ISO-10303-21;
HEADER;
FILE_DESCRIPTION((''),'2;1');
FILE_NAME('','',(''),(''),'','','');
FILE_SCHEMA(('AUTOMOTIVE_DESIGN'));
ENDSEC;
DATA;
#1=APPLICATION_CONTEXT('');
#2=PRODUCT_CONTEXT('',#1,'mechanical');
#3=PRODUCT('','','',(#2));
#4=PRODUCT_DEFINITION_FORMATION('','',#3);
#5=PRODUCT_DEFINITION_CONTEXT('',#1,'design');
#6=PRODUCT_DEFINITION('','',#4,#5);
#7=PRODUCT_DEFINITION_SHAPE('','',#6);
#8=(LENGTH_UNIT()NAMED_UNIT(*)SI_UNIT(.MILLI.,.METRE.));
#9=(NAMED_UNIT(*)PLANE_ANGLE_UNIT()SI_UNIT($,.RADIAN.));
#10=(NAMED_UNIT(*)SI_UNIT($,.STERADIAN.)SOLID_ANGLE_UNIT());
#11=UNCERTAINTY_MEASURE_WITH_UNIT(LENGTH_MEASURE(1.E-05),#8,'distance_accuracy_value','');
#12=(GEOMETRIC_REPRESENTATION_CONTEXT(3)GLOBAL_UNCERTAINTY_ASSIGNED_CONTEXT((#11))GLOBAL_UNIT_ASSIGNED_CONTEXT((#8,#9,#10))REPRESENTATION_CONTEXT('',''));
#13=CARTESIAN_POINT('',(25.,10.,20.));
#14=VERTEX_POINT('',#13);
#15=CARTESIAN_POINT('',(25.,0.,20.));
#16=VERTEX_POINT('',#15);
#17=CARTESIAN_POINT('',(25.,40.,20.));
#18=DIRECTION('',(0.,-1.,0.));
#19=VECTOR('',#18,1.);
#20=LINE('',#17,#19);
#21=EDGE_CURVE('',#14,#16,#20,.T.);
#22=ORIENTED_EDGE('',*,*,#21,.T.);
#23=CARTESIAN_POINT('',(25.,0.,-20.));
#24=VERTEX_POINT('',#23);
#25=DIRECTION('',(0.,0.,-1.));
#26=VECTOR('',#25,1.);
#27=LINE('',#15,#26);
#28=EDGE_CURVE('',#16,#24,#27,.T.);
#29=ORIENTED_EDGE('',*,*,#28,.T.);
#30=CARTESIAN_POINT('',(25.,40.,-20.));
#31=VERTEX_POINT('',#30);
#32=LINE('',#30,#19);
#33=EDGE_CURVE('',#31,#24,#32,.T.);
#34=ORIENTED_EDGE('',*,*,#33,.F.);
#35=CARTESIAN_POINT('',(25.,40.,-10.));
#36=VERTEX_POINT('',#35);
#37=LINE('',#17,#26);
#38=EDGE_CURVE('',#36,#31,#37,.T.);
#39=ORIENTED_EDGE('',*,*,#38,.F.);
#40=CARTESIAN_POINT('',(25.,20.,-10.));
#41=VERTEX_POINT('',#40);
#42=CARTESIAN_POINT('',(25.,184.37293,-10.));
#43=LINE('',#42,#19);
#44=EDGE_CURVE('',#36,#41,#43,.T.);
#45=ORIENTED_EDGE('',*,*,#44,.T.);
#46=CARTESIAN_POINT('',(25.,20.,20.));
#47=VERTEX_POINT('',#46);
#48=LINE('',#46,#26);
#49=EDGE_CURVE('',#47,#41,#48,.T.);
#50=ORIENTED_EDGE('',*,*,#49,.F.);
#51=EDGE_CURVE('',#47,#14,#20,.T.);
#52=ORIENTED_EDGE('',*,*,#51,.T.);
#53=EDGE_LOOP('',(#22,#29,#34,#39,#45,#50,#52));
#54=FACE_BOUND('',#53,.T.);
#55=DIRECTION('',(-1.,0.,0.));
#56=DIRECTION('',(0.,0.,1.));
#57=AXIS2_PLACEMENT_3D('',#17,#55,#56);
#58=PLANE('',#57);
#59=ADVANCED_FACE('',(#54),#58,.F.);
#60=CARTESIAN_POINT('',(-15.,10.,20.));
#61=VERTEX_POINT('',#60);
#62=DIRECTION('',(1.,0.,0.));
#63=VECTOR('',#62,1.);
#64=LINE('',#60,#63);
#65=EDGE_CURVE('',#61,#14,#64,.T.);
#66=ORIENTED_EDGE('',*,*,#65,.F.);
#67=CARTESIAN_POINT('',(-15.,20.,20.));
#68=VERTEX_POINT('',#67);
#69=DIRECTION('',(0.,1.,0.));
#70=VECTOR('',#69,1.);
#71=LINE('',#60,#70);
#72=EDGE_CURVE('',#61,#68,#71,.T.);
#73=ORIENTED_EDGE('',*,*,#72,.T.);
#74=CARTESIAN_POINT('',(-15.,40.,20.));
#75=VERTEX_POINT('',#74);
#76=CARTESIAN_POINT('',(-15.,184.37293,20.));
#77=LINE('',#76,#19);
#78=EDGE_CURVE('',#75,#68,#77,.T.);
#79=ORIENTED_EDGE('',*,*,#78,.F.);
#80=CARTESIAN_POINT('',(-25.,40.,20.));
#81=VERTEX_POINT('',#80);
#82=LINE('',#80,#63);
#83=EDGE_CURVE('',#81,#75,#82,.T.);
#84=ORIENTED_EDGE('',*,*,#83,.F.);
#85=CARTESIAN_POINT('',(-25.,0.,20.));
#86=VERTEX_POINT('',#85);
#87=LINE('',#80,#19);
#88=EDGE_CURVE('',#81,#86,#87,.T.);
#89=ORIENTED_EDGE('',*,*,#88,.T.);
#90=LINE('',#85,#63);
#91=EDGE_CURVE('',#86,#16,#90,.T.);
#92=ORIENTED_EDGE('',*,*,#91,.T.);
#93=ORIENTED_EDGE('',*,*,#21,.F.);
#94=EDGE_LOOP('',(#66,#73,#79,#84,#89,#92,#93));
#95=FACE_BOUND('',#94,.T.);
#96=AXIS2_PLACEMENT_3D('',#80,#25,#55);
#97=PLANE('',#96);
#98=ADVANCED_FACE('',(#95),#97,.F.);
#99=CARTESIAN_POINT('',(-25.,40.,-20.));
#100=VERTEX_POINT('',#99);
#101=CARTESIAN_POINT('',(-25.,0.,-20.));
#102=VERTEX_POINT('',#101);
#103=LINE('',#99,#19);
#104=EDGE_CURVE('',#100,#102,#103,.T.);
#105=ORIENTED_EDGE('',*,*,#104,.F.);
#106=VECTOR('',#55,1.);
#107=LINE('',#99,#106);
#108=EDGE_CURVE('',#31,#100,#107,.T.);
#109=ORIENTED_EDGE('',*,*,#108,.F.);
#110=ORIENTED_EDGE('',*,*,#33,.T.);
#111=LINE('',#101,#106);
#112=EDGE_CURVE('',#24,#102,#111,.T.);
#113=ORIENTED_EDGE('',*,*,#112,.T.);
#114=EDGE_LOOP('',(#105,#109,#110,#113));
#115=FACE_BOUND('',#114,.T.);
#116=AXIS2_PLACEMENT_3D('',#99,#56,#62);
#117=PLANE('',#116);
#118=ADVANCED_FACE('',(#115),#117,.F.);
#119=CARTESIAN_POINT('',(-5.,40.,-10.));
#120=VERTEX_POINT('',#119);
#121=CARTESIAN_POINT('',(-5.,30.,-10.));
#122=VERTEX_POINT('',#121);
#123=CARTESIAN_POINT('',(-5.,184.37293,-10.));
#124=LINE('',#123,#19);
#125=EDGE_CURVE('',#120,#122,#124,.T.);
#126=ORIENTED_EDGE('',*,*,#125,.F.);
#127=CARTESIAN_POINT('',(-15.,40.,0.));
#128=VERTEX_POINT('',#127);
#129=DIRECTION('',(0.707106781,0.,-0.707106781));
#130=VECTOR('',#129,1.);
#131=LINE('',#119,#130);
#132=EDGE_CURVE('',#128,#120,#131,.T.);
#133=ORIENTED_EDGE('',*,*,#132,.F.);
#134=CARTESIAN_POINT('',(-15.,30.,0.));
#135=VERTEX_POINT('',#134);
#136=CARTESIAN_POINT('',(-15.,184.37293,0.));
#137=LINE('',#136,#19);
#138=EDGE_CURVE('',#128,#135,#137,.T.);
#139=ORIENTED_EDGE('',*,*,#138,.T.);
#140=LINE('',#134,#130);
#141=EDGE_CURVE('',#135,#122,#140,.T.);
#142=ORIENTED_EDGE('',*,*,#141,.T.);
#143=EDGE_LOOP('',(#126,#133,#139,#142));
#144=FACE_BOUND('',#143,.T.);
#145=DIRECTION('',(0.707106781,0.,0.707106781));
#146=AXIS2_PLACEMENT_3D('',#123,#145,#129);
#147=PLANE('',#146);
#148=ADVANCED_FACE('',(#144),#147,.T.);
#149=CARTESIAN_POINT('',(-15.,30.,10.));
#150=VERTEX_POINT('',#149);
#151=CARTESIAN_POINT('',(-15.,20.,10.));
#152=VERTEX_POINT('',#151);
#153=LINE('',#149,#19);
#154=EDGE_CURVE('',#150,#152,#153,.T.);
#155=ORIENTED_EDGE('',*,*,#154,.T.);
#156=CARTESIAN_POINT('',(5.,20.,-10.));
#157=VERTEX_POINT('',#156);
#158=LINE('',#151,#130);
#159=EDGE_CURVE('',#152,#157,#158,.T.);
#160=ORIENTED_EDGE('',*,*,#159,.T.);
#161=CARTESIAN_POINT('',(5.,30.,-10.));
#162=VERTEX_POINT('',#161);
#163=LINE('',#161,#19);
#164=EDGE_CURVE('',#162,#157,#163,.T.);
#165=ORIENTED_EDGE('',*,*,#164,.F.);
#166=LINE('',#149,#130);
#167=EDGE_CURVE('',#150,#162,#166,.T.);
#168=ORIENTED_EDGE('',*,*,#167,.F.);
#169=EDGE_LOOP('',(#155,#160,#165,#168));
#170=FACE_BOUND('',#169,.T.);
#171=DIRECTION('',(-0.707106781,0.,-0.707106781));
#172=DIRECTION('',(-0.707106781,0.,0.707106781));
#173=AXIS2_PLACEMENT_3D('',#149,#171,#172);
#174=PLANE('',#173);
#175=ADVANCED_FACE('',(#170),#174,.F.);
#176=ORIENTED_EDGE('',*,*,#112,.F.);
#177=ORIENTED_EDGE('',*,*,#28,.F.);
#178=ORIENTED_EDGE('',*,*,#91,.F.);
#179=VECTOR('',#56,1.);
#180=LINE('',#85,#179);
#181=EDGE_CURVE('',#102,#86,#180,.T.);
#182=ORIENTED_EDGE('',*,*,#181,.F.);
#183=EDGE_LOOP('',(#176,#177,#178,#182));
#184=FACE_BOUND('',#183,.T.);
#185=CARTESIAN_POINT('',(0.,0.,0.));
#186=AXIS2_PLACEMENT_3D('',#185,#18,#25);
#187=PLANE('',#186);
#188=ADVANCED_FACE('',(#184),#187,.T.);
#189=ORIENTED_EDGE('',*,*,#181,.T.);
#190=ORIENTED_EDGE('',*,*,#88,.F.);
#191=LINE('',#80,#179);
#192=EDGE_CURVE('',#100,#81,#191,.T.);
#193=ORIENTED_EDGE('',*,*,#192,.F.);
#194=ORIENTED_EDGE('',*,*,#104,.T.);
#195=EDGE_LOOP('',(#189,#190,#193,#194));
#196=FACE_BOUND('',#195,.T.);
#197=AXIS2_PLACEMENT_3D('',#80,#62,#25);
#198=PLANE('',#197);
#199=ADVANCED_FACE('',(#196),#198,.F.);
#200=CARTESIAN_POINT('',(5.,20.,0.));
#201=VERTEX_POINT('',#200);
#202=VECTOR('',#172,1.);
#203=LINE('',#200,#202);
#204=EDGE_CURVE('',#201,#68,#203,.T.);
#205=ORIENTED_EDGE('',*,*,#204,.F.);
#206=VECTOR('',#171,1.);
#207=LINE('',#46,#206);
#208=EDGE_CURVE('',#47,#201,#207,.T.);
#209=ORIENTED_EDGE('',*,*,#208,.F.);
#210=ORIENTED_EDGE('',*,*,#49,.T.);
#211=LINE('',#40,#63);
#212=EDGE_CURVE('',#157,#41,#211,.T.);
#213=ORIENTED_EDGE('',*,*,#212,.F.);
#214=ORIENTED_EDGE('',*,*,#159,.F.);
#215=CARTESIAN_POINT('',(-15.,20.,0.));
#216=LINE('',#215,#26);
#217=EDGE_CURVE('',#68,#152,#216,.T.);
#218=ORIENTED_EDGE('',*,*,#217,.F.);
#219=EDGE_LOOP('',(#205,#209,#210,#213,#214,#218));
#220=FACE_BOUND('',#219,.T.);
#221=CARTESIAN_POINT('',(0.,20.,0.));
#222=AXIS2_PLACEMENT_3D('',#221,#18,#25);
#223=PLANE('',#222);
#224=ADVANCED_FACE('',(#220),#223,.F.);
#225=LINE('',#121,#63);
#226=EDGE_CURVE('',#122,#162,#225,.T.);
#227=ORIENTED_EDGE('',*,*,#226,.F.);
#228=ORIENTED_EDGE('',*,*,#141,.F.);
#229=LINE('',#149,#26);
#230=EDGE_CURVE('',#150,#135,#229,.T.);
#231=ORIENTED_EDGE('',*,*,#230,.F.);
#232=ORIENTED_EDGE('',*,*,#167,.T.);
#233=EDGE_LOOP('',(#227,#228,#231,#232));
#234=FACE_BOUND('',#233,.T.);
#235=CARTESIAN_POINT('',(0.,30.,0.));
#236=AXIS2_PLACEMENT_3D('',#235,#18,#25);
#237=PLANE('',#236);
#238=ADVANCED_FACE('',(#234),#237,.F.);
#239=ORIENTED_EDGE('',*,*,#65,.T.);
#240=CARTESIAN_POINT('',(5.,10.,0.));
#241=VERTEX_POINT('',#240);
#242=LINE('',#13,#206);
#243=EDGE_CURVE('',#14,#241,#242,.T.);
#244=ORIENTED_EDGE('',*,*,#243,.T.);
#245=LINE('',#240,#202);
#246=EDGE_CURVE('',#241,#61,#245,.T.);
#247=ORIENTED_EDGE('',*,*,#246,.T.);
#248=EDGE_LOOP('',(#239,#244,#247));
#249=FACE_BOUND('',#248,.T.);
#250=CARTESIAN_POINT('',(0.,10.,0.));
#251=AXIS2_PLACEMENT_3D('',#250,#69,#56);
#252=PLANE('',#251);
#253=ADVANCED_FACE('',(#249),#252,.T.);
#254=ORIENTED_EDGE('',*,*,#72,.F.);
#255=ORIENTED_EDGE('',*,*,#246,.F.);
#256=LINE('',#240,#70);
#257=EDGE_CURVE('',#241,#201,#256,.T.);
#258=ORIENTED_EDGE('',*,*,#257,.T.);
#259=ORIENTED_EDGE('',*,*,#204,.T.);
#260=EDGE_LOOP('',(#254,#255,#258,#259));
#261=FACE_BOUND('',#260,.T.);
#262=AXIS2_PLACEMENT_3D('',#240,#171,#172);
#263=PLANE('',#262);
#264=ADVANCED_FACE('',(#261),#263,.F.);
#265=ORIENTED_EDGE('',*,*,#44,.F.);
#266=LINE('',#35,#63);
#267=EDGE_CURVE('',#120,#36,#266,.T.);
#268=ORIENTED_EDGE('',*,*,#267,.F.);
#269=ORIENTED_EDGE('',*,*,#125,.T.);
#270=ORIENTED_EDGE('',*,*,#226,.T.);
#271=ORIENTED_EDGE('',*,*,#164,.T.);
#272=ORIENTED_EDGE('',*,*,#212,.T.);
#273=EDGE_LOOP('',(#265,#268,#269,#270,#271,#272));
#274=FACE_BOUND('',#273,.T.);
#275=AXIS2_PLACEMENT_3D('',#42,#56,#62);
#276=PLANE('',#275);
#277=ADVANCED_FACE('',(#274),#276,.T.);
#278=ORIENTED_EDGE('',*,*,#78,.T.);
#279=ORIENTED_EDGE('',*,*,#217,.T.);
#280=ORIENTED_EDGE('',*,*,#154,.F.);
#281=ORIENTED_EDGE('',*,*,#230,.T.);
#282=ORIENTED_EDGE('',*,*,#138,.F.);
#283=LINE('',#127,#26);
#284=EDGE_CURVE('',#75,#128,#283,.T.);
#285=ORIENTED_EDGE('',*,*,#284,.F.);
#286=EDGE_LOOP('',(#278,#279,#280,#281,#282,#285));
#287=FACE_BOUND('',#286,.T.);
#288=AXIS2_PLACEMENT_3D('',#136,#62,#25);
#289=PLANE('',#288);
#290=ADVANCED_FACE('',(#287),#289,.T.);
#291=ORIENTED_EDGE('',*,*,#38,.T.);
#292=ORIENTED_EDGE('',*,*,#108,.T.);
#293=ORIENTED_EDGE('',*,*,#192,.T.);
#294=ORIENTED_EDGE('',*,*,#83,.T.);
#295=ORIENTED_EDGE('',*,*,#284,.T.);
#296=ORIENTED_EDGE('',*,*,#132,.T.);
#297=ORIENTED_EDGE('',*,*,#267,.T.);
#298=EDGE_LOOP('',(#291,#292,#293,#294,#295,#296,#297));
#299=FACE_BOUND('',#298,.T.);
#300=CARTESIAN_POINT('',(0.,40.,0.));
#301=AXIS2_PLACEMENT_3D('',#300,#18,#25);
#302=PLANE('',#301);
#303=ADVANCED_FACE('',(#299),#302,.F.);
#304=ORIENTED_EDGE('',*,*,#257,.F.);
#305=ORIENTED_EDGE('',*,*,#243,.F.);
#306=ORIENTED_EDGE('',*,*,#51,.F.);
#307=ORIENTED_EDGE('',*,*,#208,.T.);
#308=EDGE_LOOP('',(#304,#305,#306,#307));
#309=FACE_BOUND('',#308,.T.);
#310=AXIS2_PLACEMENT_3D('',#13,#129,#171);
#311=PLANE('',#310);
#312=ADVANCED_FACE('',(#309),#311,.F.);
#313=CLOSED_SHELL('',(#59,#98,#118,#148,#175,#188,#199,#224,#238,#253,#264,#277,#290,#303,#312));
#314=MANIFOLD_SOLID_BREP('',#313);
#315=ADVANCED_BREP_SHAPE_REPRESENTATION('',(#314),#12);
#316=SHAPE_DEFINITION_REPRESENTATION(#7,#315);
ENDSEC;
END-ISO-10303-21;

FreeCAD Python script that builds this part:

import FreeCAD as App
import Part
import Sketcher
Q = App.Units.Quantity


def add_polygon(sketch, points):
    """Adds a closed chain of lines whose ends are joined by coincident constraints."""
    first, n = sketch.GeometryCount, len(points)
    for a, b in zip(points, points[1:] + points[:1]):
        sketch.addGeometry(Part.LineSegment(App.Vector(*a, 0), App.Vector(*b, 0)), False)
    for i in range(n):
        sketch.addConstraint(Sketcher.Constraint("Coincident", first + i, 2, first + (i + 1) % n, 1))

doc = App.newDocument("Part")
body = doc.addObject("PartDesign::Body", "Body")

sketch1 = body.newObject("Sketcher::SketchObject", "Sketch")
sketch1.AttachmentSupport = (doc.getObject("XZ_Plane"), [""])
sketch1.MapMode = "FlatFace"
add_polygon(sketch1, [(-25, -20), (-25, 20), (25, 20), (25, -20)])
sketch1.addConstraint(Sketcher.Constraint("Vertical", 0))
sketch1.addConstraint(Sketcher.Constraint("Horizontal", 1))
sketch1.addConstraint(Sketcher.Constraint("Vertical", 2))
sketch1.addConstraint(Sketcher.Constraint("Horizontal", 3))
sketch1.addConstraint(Sketcher.Constraint("Symmetric", 0, 2, 2, 2, -1, 1))
sketch1.addConstraint(Sketcher.Constraint("DistanceX", 1, 1, 1, 2, 50.0))
sketch1.addConstraint(Sketcher.Constraint("DistanceY", 0, 1, 0, 2, 40.0))
pad1 = body.newObject("PartDesign::Pad", "Pad")
pad1.Profile = sketch1
pad1.Length = 40
pad1.Reversed = True

sketch2 = body.newObject("Sketcher::SketchObject", "Sketch001")
sketch2.AttachmentSupport = (doc.getObject("XZ_Plane"), [""])
sketch2.MapMode = "FlatFace"
sketch2.AttachmentOffset = App.Placement(App.Vector(0, 0, -40), App.Rotation())
add_polygon(sketch2, [(25, 20), (5, 0), (-15, 20)])
sketch2.addConstraint(Sketcher.Constraint("Horizontal", 2))
sketch2.addConstraint(Sketcher.Constraint("PointOnObject", 0, 2, -1))
sketch2.addConstraint(Sketcher.Constraint("Perpendicular", 0, 1))
sketch2.addConstraint(Sketcher.Constraint("Equal", 0, 1))
sketch2.addConstraint(Sketcher.Constraint("DistanceX", 2, 1, 2, 2, 40.0))
sketch2.addConstraint(Sketcher.Constraint("DistanceX", -1, 1, 0, 2, 5.0))
pocket1 = body.newObject("PartDesign::Pocket", "Pocket")
pocket1.Profile = sketch2
pocket1.Length = 30
pocket1.Reversed = True

sketch3 = body.newObject("Sketcher::SketchObject", "Sketch002")
sketch3.AttachmentSupport = (doc.getObject("XZ_Plane"), [""])
sketch3.MapMode = "FlatFace"
sketch3.AttachmentOffset = App.Placement(App.Vector(0, 0, -40), App.Rotation())
add_polygon(sketch3, [(152, -10), (-5, -10), (-15, 0), (-15, 147), (158, 331), (325, 175)])
sketch3.addConstraint(Sketcher.Constraint("Horizontal", 0))
sketch3.addConstraint(Sketcher.Constraint("Vertical", 2))
sketch3.addConstraint(Sketcher.Constraint("PointOnObject", 1, 2, -1))
sketch3.addConstraint(Sketcher.Constraint("Perpendicular", 3, 4))
sketch3.addConstraint(Sketcher.Constraint("Perpendicular", 4, 5))
sketch3.addConstraint(Sketcher.Constraint("Equal", 3, 5))
sketch3.addConstraint(Sketcher.Constraint("Angle", 1, Q("135 deg")))
sketch3.addConstraint(Sketcher.Constraint("DistanceX", 0, 2, -1, 1, 5.0))
sketch3.addConstraint(Sketcher.Constraint("DistanceY", 0, 2, -1, 1, 10.0))
sketch3.addConstraint(Sketcher.Constraint("DistanceX", 0, 2, 0, 1, 156.619038))
sketch3.addConstraint(Sketcher.Constraint("DistanceY", 2, 1, 2, 2, 146.619038))
sketch3.addConstraint(Sketcher.Constraint("DistanceX", -1, 1, 4, 2, 325.06265))
pocket2 = body.newObject("PartDesign::Pocket", "Pocket001")
pocket2.Profile = sketch3
pocket2.Type = "TwoLengths"
pocket2.Length = 1
pocket2.Length2 = 20

sketch4 = body.newObject("Sketcher::SketchObject", "Sketch003")
sketch4.AttachmentSupport = (doc.getObject("XZ_Plane"), [""])
sketch4.MapMode = "FlatFace"
sketch4.AttachmentOffset = App.Placement(App.Vector(0, 0, -20), App.Rotation())
add_polygon(sketch4, [(-15, 10), (5, -10), (-5, -10), (-15, 0)])
sketch4.addConstraint(Sketcher.Constraint("Horizontal", 1))
sketch4.addConstraint(Sketcher.Constraint("Vertical", 3))
sketch4.addConstraint(Sketcher.Constraint("PointOnObject", 2, 2, -1))
sketch4.addConstraint(Sketcher.Constraint("Parallel", 0, 2))
sketch4.addConstraint(Sketcher.Constraint("Equal", 1, 3))
sketch4.addConstraint(Sketcher.Constraint("DistanceX", 1, 2, 1, 1, 10.0))
sketch4.addConstraint(Sketcher.Constraint("DistanceX", -1, 1, 0, 2, 5.0))
sketch4.addConstraint(Sketcher.Constraint("DistanceY", 0, 2, -1, 1, 10.0))
pad2 = body.newObject("PartDesign::Pad", "Pad001")
pad2.Profile = sketch4
pad2.Length = 10
pad2.Reversed = True

doc.recompute()
